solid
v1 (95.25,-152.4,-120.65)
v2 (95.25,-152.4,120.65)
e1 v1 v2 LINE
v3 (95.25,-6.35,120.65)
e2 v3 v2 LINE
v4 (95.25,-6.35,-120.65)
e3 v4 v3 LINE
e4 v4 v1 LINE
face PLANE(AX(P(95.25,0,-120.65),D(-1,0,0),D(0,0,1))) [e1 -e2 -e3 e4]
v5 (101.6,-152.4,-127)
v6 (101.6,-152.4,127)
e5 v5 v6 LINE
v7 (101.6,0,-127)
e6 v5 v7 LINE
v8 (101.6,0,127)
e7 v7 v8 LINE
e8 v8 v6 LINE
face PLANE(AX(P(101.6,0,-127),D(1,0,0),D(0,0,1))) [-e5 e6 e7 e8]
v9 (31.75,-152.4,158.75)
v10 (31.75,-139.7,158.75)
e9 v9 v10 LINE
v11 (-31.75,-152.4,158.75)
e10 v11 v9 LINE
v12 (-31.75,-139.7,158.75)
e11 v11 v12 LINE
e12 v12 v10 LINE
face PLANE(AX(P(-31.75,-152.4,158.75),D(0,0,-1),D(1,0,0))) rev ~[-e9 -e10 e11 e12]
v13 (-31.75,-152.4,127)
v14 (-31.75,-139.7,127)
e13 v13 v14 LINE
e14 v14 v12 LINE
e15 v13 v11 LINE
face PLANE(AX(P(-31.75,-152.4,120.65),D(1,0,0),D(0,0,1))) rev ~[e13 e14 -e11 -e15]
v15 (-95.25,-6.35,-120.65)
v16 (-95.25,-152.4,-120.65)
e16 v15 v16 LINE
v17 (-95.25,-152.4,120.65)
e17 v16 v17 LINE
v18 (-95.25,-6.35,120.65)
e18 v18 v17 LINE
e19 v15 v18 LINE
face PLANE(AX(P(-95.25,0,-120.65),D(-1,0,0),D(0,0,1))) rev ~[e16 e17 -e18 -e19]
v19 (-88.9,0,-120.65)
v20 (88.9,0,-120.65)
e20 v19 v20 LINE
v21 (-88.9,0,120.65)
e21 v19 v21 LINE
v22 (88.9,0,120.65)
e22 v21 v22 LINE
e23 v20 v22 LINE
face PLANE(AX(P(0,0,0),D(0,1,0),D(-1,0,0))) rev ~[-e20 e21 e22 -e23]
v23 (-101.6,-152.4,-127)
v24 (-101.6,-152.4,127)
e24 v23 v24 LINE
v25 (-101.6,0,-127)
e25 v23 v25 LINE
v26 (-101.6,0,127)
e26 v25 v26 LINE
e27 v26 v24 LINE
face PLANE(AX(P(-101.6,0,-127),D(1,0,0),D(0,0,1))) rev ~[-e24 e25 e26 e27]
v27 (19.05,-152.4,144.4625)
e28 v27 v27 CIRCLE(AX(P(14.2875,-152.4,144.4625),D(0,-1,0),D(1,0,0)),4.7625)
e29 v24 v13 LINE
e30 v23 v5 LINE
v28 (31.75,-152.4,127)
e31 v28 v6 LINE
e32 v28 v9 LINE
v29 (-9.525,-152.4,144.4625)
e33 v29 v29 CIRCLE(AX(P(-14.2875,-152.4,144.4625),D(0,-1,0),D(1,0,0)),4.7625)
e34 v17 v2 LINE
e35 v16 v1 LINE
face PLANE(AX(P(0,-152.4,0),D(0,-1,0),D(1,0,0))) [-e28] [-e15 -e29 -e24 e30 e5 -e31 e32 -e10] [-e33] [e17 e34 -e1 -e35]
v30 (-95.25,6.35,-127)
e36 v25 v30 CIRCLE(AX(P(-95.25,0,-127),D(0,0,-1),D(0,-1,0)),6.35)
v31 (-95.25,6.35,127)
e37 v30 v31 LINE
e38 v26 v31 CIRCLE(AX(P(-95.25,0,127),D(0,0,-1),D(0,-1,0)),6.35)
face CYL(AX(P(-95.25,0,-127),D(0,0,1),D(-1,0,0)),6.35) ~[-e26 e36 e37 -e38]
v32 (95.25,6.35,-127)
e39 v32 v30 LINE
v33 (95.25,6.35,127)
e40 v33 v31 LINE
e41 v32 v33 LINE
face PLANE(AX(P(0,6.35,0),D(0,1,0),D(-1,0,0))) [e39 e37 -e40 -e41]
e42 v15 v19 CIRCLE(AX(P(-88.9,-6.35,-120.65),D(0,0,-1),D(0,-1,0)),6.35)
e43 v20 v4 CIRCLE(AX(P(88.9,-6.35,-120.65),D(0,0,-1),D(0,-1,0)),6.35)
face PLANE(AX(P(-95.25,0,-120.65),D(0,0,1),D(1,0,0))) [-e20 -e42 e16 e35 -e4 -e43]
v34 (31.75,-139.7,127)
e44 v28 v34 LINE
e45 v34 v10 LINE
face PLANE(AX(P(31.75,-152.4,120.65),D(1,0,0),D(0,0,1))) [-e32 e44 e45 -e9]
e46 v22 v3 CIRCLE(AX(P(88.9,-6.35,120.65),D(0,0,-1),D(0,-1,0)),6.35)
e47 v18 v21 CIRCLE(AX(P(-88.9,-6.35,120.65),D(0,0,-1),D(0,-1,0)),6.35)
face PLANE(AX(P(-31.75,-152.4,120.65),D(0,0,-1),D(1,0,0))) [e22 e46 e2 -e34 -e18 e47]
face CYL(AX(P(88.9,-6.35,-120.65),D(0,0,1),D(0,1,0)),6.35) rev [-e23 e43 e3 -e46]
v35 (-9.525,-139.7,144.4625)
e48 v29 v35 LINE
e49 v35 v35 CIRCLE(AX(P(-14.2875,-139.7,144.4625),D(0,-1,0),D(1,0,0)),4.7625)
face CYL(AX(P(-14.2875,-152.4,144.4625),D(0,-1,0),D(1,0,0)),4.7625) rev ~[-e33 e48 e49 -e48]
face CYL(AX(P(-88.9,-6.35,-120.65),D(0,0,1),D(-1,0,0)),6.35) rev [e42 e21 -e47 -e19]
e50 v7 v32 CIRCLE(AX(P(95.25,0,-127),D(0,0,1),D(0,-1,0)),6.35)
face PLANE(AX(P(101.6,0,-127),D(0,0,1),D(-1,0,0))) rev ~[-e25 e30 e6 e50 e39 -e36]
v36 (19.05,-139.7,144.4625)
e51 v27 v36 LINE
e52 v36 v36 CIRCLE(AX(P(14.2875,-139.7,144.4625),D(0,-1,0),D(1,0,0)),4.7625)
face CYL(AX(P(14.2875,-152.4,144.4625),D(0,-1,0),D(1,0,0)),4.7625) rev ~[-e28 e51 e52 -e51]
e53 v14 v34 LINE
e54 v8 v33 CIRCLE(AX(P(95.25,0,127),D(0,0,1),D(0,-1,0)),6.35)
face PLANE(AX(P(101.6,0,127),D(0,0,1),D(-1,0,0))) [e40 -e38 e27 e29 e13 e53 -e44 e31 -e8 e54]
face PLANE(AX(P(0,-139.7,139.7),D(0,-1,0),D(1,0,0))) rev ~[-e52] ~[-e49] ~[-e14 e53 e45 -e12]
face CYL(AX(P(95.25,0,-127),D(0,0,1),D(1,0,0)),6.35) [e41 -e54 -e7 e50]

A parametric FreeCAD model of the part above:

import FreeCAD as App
import Part
import Sketcher
Q = App.Units.Quantity


def edges_at(feature, points):
    """Names of the edges that pass closest to the given points."""
    edges = feature.Shape.Edges
    near = lambda p: min(range(len(edges)), key=lambda i: edges[i].distToShape(Part.Vertex(*p))[0])
    return sorted({f"Edge{near(p) + 1}" for p in points})

doc = App.newDocument("Part")
body = doc.addObject("PartDesign::Body", "Body")

sketch1 = body.newObject("Sketcher::SketchObject", "Sketch")
sketch1.AttachmentSupport = (doc.getObject("XZ_Plane"), [""])
sketch1.MapMode = "FlatFace"
sketch1.addGeometry([
    Part.LineSegment(App.Vector(-102, 127, 0), App.Vector(-102, -127, 0)),
    Part.LineSegment(App.Vector(-102, -127, 0), App.Vector(102, -127, 0)),
    Part.LineSegment(App.Vector(102, -127, 0), App.Vector(102, 127, 0)),
    Part.LineSegment(App.Vector(102, 127, 0), App.Vector(-102, 127, 0)),
    Part.LineSegment(App.Vector(95, -121, 0), App.Vector(-95, -121, 0)),
    Part.LineSegment(App.Vector(-95, -121, 0), App.Vector(-95, 121, 0)),
    Part.LineSegment(App.Vector(-95, 121, 0), App.Vector(95, 121, 0)),
    Part.LineSegment(App.Vector(95, 121, 0), App.Vector(95, -121, 0)),
], False)
sketch1.addConstraint([
    Sketcher.Constraint("Coincident", 0, 2, 1, 1),
    Sketcher.Constraint("Coincident", 1, 2, 2, 1),
    Sketcher.Constraint("Coincident", 2, 2, 3, 1),
    Sketcher.Constraint("Coincident", 3, 2, 0, 1),
    Sketcher.Constraint("Coincident", 4, 2, 5, 1),
    Sketcher.Constraint("Coincident", 5, 2, 6, 1),
    Sketcher.Constraint("Coincident", 6, 2, 7, 1),
    Sketcher.Constraint("Coincident", 7, 2, 4, 1),
    Sketcher.Constraint("Vertical", 0),
    Sketcher.Constraint("Horizontal", 1),
    Sketcher.Constraint("Vertical", 2),
    Sketcher.Constraint("Horizontal", 3),
    Sketcher.Constraint("Horizontal", 4),
    Sketcher.Constraint("Vertical", 5),
    Sketcher.Constraint("Horizontal", 6),
    Sketcher.Constraint("Vertical", 7),
    Sketcher.Constraint("Symmetric", 0, 2, 2, 2, -1, 1),
    Sketcher.Constraint("Symmetric", 4, 2, 6, 2, -1, 1),
    Sketcher.Constraint("DistanceX", 1, 1, 1, 2, Q("8 in")),
    Sketcher.Constraint("DistanceY", 0, 2, 0, 1, Q("10 in")),
    Sketcher.Constraint("DistanceX", 4, 2, 4, 1, Q("7.5 in")),
    Sketcher.Constraint("DistanceY", 5, 1, 5, 2, Q("9.5 in")),
])
pad1 = body.newObject("PartDesign::Pad", "Pad")
pad1.Profile = sketch1
pad1.Length = Q("6 in")

sketch2 = body.newObject("Sketcher::SketchObject", "Sketch001")
sketch2.AttachmentSupport = (doc.getObject("XZ_Plane"), [""])
sketch2.MapMode = "FlatFace"
sketch2.addGeometry([
    Part.LineSegment(App.Vector(102, 127, 0), App.Vector(102, -127, 0)),
    Part.LineSegment(App.Vector(102, -127, 0), App.Vector(-102, -127, 0)),
    Part.LineSegment(App.Vector(-102, -127, 0), App.Vector(-102, 127, 0)),
    Part.LineSegment(App.Vector(-102, 127, 0), App.Vector(102, 127, 0)),
], False)
sketch2.addConstraint([
    Sketcher.Constraint("Coincident", 0, 2, 1, 1),
    Sketcher.Constraint("Coincident", 1, 2, 2, 1),
    Sketcher.Constraint("Coincident", 2, 2, 3, 1),
    Sketcher.Constraint("Coincident", 3, 2, 0, 1),
    Sketcher.Constraint("Vertical", 0),
    Sketcher.Constraint("Horizontal", 1),
    Sketcher.Constraint("Vertical", 2),
    Sketcher.Constraint("Horizontal", 3),
    Sketcher.Constraint("Symmetric", 0, 2, 2, 2, -1, 1),
    Sketcher.Constraint("DistanceX", 1, 2, 1, 1, Q("8 in")),
    Sketcher.Constraint("DistanceY", 0, 2, 0, 1, Q("10 in")),
])
pad2 = body.newObject("PartDesign::Pad", "Pad001")
pad2.Profile = sketch2
pad2.Length = Q("0.25 in")
pad2.Reversed = True
doc.recompute()

fillet = body.newObject("PartDesign::Fillet", "Fillet")
fillet.Base = (pad2, edges_at(pad2, [
    (-95.25, 0, 0),
    (95.25, 0, 0),
    (-101.6, 6.35, 0),
    (101.6, 6.35, 0),
]))
fillet.Radius = Q("0.25 in")

sketch3 = body.newObject("Sketcher::SketchObject", "Sketch002")
sketch3.AttachmentSupport = (doc.getObject("XZ_Plane"), [""])
sketch3.MapMode = "FlatFace"
sketch3.AttachmentOffset = App.Placement(App.Vector(0, 0, 6 * 25.4), App.Rotation())
sketch3.addGeometry([
    Part.LineSegment(App.Vector(-31.8, 158.8, 0), App.Vector(-31.8, 120.7, 0)),
    Part.LineSegment(App.Vector(-31.8, 120.7, 0), App.Vector(31.8, 120.7, 0)),
    Part.LineSegment(App.Vector(31.8, 120.7, 0), App.Vector(31.8, 158.8, 0)),
    Part.LineSegment(App.Vector(31.8, 158.8, 0), App.Vector(-31.8, 158.8, 0)),
    Part.Circle(App.Vector(-14.3, 144.5, 0), App.Vector(0, 0, 1), 4.8),
    Part.Circle(App.Vector(14.3, 144.5, 0), App.Vector(0, 0, 1), 4.8),
], False)
sketch3.addConstraint([
    Sketcher.Constraint("Coincident", 0, 2, 1, 1),
    Sketcher.Constraint("Coincident", 1, 2, 2, 1),
    Sketcher.Constraint("Coincident", 2, 2, 3, 1),
    Sketcher.Constraint("Coincident", 3, 2, 0, 1),
    Sketcher.Constraint("Vertical", 0),
    Sketcher.Constraint("Horizontal", 1),
    Sketcher.Constraint("Vertical", 2),
    Sketcher.Constraint("Horizontal", 3),
    Sketcher.Constraint("Equal", 4, 5),
    Sketcher.Constraint("Symmetric", 4, 3, 5, 3, -2),
    Sketcher.Constraint("Diameter", 4, Q("0.375 in")),
    Sketcher.Constraint("DistanceX", 1, 1, 1, 2, Q("2.5 in")),
    Sketcher.Constraint("DistanceY", 0, 2, 0, 1, Q("1.5 in")),
    Sketcher.Constraint("DistanceX", 0, 2, -1, 1, Q("1.25 in")),
    Sketcher.Constraint("DistanceY", -1, 1, 0, 2, Q("4.75 in")),
    Sketcher.Constraint("DistanceX", 4, 3, -1, 1, Q("0.5625 in")),
    Sketcher.Constraint("DistanceY", -1, 1, 4, 3, Q("5.6875 in")),
])
pad3 = body.newObject("PartDesign::Pad", "Pad002")
pad3.Profile = sketch3
pad3.Length = Q("0.5 in")
pad3.Reversed = True

doc.recompute()
